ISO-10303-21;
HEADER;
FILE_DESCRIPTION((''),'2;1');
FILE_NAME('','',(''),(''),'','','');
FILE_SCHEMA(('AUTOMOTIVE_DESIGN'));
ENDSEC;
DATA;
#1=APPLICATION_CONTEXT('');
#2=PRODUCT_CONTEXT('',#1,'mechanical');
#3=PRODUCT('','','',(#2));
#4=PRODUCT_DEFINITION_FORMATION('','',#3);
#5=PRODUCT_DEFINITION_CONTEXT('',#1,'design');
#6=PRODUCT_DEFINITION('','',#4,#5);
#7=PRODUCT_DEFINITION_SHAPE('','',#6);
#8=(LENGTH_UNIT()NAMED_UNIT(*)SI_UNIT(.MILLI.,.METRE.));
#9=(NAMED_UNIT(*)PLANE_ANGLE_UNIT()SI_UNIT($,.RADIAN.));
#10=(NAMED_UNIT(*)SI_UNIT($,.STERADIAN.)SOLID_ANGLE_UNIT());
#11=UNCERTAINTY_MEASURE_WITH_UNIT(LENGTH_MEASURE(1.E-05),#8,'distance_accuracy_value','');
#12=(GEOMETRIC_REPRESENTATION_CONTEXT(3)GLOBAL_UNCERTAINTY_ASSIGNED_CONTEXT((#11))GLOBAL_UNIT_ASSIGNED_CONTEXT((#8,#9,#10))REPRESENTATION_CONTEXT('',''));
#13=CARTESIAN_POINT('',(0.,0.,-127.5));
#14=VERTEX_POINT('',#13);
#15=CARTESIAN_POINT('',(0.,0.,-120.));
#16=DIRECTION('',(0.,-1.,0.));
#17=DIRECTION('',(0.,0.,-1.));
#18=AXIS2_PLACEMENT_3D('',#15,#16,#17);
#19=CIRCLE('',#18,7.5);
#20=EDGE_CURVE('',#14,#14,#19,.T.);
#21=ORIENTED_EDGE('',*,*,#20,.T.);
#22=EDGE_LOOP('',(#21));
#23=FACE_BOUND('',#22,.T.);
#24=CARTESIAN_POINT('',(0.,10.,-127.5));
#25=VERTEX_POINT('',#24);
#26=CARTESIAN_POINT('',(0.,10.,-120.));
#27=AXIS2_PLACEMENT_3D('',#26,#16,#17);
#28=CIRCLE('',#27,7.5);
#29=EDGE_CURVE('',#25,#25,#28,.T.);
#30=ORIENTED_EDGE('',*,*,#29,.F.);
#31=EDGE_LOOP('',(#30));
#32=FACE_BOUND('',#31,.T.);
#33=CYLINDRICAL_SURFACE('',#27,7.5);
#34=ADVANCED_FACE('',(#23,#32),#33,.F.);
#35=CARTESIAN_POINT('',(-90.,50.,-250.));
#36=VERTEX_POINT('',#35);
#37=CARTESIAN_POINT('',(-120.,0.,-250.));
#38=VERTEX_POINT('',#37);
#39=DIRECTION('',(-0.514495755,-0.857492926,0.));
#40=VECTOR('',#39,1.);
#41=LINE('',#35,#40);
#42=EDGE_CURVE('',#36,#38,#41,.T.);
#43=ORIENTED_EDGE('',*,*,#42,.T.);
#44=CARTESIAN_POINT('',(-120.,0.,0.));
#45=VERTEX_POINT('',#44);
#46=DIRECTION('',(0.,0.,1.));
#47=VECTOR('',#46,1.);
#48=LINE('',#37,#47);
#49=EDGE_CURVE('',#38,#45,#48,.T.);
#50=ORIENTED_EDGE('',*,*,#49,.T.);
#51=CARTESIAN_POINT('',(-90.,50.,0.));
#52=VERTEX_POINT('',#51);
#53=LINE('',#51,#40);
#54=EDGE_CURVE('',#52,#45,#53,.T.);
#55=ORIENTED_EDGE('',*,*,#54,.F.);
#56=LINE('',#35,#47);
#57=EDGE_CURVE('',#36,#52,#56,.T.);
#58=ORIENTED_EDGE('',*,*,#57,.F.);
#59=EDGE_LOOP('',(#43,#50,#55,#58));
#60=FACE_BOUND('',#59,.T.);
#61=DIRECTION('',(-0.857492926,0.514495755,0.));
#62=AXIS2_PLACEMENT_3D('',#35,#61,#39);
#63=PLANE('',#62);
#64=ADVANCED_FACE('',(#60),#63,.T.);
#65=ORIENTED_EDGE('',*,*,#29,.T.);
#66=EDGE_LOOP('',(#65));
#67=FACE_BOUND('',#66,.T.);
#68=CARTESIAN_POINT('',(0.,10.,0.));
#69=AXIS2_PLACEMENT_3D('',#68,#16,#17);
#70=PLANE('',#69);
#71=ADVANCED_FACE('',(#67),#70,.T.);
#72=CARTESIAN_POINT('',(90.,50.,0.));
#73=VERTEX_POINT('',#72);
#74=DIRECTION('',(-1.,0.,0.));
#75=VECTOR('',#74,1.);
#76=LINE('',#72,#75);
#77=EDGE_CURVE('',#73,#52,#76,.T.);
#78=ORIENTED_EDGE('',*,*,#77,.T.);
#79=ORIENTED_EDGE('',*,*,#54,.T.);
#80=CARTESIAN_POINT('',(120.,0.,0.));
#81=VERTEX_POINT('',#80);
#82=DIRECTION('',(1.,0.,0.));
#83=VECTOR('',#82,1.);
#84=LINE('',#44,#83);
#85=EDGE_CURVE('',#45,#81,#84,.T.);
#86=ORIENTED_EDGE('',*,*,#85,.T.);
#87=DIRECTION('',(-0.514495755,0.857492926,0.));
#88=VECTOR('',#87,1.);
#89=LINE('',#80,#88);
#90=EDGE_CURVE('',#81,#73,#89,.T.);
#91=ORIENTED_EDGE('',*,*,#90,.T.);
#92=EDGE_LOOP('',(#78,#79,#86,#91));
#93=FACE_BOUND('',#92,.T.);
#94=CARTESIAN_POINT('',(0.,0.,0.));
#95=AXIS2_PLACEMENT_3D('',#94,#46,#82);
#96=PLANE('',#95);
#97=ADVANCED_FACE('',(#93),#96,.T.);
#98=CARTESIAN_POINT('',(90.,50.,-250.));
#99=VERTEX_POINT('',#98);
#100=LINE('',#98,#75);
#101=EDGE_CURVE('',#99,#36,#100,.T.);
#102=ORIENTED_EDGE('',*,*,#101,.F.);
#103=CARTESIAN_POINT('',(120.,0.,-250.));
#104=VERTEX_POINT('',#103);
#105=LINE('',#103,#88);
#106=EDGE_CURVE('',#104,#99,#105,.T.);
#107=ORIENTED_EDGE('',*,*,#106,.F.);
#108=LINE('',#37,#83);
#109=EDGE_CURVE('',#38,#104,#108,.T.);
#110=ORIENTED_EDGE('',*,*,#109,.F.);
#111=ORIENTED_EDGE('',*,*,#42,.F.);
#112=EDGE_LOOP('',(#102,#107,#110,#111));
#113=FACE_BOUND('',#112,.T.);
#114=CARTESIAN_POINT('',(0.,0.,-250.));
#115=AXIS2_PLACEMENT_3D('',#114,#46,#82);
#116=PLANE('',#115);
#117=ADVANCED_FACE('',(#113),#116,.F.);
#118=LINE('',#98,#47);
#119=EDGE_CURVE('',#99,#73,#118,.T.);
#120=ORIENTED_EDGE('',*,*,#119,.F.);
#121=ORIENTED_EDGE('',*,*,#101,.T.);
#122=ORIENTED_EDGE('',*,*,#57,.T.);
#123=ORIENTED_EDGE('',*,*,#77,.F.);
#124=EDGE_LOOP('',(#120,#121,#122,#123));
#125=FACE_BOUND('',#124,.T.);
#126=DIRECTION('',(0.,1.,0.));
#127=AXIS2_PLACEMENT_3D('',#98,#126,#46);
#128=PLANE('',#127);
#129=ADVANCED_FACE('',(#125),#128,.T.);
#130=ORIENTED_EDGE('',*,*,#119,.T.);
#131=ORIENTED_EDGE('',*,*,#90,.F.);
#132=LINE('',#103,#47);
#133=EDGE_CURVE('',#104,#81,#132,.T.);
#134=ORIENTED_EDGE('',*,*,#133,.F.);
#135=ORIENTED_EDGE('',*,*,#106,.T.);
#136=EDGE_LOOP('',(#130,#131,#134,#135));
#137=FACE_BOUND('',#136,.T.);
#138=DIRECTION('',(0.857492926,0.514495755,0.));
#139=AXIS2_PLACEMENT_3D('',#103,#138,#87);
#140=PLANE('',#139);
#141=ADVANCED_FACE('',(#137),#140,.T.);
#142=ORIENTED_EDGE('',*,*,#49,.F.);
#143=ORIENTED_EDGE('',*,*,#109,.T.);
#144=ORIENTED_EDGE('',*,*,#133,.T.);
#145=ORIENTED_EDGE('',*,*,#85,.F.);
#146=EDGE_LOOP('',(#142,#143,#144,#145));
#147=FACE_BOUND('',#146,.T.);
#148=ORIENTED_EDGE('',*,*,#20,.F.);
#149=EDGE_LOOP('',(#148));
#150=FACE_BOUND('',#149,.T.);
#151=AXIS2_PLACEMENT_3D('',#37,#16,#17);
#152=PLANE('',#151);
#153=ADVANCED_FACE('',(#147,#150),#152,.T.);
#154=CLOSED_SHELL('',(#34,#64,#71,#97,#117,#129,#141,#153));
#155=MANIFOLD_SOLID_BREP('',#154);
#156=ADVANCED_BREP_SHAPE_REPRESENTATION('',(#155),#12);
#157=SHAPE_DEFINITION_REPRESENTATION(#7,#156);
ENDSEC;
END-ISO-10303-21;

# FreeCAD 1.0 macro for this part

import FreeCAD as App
import Part
import Sketcher
from FreeCAD import Vector


def add_polygon(sketch, points):
    """Adds a closed chain of lines whose ends are joined by coincident constraints."""
    first, n = sketch.GeometryCount, len(points)
    for a, b in zip(points, points[1:] + points[:1]):
        sketch.addGeometry(Part.LineSegment(App.Vector(*a, 0), App.Vector(*b, 0)), False)
    for i in range(n):
        sketch.addConstraint(Sketcher.Constraint("Coincident", first + i, 2, first + (i + 1) % n, 1))

doc = App.newDocument("Part")
body = doc.addObject("PartDesign::Body", "Body")

# Sketch on XY plane
sketch1 = body.newObject("Sketcher::SketchObject", "Sketch")
sketch1.AttachmentSupport = (doc.getObject("XY_Plane"), [""])
sketch1.MapMode = "FlatFace"
add_polygon(sketch1, [(-120, 0), (120, 0), (90, 50), (-90, 50)])  # lines 0-3
sketch1.addConstraint([
    Sketcher.Constraint("Horizontal", 0),
    Sketcher.Constraint("Horizontal", 2),
    Sketcher.Constraint("Symmetric", 0, 2, 3, 2, -1, 1),
    Sketcher.Constraint("Equal", 1, 3),
    Sketcher.Constraint("DistanceX", 0, 1, 0, 2, 240.0),
    Sketcher.Constraint("DistanceX", 2, 2, 2, 1, 180.0),
    Sketcher.Constraint("DistanceY", -1, 1, 1, 2, 50.0),
])
pad1 = body.newObject("PartDesign::Pad", "Pad")
pad1.Profile = sketch1
pad1.Length = 250
pad1.Reversed = True

# Sketch on XZ plane
sketch2 = body.newObject("Sketcher::SketchObject", "Sketch001")
sketch2.AttachmentSupport = (doc.getObject("XZ_Plane"), [""])
sketch2.MapMode = "FlatFace"
sketch2.addGeometry(Part.Circle(Vector(0, -120, 0), Vector(0, 0, 1), 8), False)
sketch2.addConstraint([
    Sketcher.Constraint("PointOnObject", 0, 3, -2),
    Sketcher.Constraint("Diameter", 0, 15.0),
    Sketcher.Constraint("DistanceY", 0, 3, -1, 1, 120.0),
])
pocket1 = body.newObject("PartDesign::Pocket", "Pocket")
pocket1.Profile = sketch2
pocket1.Length = 10

doc.recompute()
